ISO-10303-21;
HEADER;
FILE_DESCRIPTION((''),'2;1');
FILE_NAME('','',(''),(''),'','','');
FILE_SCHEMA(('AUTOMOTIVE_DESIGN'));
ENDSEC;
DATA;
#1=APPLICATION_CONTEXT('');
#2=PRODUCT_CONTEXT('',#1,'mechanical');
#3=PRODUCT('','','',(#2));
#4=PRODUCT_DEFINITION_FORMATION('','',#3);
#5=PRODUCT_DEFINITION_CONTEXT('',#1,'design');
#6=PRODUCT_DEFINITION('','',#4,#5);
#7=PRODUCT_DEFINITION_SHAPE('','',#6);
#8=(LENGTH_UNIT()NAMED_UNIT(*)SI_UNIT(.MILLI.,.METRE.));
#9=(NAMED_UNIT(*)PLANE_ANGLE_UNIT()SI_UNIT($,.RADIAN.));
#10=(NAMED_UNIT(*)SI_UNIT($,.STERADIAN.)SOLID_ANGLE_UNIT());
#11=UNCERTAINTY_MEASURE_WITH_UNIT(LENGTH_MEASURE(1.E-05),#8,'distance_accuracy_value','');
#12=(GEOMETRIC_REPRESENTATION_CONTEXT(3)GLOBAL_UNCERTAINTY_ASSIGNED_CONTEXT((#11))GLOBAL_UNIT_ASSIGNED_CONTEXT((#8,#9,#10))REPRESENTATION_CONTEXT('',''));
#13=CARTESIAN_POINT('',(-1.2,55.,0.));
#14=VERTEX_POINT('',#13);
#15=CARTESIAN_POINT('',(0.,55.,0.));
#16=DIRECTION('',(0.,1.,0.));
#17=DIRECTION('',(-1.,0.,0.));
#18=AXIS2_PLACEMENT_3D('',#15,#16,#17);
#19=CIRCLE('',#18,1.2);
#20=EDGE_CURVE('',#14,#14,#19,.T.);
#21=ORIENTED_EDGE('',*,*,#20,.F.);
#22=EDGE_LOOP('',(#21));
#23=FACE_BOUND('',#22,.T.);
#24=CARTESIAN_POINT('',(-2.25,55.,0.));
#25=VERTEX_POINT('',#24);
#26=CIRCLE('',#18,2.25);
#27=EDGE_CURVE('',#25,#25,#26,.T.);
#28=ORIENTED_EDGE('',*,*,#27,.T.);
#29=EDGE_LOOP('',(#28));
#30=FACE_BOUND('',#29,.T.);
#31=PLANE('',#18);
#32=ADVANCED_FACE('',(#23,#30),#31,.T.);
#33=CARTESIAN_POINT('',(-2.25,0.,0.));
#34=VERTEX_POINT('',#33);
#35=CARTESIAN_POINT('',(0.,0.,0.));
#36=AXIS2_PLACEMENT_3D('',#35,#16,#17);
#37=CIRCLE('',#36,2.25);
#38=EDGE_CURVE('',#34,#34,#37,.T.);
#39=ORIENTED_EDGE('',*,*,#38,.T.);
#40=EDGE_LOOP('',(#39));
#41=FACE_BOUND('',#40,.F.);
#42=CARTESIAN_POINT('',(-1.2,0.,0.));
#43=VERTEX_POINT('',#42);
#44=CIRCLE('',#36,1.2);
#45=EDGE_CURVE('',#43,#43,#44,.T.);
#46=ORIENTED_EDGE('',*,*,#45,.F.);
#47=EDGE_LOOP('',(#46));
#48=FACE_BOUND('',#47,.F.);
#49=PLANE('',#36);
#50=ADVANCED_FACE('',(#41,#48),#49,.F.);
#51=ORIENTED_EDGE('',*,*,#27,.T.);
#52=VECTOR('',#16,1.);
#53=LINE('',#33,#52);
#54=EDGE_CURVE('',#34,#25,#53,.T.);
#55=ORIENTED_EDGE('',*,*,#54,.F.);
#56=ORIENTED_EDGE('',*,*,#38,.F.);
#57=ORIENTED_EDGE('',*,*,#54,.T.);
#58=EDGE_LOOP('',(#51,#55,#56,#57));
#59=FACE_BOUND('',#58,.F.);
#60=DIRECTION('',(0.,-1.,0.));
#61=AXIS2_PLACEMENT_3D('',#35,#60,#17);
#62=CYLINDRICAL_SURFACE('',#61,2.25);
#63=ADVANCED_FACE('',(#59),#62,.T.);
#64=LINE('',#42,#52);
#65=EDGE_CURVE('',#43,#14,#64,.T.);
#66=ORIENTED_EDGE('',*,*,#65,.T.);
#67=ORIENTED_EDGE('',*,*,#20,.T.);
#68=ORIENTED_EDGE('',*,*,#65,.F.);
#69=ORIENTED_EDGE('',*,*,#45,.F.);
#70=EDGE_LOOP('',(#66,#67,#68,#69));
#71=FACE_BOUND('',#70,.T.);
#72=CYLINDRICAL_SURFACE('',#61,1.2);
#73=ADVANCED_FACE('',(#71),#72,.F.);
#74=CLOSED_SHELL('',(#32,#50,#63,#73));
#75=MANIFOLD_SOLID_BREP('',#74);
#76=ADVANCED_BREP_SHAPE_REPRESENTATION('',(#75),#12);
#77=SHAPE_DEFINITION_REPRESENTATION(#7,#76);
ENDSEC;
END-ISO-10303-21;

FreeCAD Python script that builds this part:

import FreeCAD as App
import Part
import Sketcher
Q = App.Units.Quantity

doc = App.newDocument("Part")
params = doc.addObject("Spreadsheet::Sheet", "Params")
for row, (alias, value) in enumerate([
    ("sketch1_diameter", "4.5 mm"),
    ("sketch1_diameter2", "2.4 mm"),
    ("pad1_length", "55 mm"),
], start=1):
    params.set(f"A{row}", alias)
    params.set(f"B{row}", "=" + value)
    params.setAlias(f"B{row}", alias)

body = doc.addObject("PartDesign::Body", "Body")

sketch1 = body.newObject("Sketcher::SketchObject", "Sketch")
sketch1.AttachmentSupport = (doc.getObject("XZ_Plane"), [""])
sketch1.MapMode = "FlatFace"
sketch1.addGeometry(Part.Circle(App.Vector(0, 0, 0), App.Vector(0, 0, 1), 2.2), False)
sketch1.addGeometry(Part.Circle(App.Vector(0, 0, 0), App.Vector(0, 0, 1), 1.2), False)
sketch1.addConstraint(Sketcher.Constraint("Coincident", 0, 3, -1, 1))
sketch1.addConstraint(Sketcher.Constraint("Coincident", 1, 3, -1, 1))
sketch1.addConstraint(Sketcher.Constraint("Diameter", 0, Q("4.5 mm")))
sketch1.addConstraint(Sketcher.Constraint("Diameter", 1, Q("2.4 mm")))
sketch1.setExpression("Constraints[2]", "Params.sketch1_diameter")
sketch1.setExpression("Constraints[3]", "Params.sketch1_diameter2")
pad1 = body.newObject("PartDesign::Pad", "Pad")
pad1.Profile = sketch1
pad1.setExpression("Length", "Params.pad1_length")
pad1.Reversed = True

doc.recompute()
